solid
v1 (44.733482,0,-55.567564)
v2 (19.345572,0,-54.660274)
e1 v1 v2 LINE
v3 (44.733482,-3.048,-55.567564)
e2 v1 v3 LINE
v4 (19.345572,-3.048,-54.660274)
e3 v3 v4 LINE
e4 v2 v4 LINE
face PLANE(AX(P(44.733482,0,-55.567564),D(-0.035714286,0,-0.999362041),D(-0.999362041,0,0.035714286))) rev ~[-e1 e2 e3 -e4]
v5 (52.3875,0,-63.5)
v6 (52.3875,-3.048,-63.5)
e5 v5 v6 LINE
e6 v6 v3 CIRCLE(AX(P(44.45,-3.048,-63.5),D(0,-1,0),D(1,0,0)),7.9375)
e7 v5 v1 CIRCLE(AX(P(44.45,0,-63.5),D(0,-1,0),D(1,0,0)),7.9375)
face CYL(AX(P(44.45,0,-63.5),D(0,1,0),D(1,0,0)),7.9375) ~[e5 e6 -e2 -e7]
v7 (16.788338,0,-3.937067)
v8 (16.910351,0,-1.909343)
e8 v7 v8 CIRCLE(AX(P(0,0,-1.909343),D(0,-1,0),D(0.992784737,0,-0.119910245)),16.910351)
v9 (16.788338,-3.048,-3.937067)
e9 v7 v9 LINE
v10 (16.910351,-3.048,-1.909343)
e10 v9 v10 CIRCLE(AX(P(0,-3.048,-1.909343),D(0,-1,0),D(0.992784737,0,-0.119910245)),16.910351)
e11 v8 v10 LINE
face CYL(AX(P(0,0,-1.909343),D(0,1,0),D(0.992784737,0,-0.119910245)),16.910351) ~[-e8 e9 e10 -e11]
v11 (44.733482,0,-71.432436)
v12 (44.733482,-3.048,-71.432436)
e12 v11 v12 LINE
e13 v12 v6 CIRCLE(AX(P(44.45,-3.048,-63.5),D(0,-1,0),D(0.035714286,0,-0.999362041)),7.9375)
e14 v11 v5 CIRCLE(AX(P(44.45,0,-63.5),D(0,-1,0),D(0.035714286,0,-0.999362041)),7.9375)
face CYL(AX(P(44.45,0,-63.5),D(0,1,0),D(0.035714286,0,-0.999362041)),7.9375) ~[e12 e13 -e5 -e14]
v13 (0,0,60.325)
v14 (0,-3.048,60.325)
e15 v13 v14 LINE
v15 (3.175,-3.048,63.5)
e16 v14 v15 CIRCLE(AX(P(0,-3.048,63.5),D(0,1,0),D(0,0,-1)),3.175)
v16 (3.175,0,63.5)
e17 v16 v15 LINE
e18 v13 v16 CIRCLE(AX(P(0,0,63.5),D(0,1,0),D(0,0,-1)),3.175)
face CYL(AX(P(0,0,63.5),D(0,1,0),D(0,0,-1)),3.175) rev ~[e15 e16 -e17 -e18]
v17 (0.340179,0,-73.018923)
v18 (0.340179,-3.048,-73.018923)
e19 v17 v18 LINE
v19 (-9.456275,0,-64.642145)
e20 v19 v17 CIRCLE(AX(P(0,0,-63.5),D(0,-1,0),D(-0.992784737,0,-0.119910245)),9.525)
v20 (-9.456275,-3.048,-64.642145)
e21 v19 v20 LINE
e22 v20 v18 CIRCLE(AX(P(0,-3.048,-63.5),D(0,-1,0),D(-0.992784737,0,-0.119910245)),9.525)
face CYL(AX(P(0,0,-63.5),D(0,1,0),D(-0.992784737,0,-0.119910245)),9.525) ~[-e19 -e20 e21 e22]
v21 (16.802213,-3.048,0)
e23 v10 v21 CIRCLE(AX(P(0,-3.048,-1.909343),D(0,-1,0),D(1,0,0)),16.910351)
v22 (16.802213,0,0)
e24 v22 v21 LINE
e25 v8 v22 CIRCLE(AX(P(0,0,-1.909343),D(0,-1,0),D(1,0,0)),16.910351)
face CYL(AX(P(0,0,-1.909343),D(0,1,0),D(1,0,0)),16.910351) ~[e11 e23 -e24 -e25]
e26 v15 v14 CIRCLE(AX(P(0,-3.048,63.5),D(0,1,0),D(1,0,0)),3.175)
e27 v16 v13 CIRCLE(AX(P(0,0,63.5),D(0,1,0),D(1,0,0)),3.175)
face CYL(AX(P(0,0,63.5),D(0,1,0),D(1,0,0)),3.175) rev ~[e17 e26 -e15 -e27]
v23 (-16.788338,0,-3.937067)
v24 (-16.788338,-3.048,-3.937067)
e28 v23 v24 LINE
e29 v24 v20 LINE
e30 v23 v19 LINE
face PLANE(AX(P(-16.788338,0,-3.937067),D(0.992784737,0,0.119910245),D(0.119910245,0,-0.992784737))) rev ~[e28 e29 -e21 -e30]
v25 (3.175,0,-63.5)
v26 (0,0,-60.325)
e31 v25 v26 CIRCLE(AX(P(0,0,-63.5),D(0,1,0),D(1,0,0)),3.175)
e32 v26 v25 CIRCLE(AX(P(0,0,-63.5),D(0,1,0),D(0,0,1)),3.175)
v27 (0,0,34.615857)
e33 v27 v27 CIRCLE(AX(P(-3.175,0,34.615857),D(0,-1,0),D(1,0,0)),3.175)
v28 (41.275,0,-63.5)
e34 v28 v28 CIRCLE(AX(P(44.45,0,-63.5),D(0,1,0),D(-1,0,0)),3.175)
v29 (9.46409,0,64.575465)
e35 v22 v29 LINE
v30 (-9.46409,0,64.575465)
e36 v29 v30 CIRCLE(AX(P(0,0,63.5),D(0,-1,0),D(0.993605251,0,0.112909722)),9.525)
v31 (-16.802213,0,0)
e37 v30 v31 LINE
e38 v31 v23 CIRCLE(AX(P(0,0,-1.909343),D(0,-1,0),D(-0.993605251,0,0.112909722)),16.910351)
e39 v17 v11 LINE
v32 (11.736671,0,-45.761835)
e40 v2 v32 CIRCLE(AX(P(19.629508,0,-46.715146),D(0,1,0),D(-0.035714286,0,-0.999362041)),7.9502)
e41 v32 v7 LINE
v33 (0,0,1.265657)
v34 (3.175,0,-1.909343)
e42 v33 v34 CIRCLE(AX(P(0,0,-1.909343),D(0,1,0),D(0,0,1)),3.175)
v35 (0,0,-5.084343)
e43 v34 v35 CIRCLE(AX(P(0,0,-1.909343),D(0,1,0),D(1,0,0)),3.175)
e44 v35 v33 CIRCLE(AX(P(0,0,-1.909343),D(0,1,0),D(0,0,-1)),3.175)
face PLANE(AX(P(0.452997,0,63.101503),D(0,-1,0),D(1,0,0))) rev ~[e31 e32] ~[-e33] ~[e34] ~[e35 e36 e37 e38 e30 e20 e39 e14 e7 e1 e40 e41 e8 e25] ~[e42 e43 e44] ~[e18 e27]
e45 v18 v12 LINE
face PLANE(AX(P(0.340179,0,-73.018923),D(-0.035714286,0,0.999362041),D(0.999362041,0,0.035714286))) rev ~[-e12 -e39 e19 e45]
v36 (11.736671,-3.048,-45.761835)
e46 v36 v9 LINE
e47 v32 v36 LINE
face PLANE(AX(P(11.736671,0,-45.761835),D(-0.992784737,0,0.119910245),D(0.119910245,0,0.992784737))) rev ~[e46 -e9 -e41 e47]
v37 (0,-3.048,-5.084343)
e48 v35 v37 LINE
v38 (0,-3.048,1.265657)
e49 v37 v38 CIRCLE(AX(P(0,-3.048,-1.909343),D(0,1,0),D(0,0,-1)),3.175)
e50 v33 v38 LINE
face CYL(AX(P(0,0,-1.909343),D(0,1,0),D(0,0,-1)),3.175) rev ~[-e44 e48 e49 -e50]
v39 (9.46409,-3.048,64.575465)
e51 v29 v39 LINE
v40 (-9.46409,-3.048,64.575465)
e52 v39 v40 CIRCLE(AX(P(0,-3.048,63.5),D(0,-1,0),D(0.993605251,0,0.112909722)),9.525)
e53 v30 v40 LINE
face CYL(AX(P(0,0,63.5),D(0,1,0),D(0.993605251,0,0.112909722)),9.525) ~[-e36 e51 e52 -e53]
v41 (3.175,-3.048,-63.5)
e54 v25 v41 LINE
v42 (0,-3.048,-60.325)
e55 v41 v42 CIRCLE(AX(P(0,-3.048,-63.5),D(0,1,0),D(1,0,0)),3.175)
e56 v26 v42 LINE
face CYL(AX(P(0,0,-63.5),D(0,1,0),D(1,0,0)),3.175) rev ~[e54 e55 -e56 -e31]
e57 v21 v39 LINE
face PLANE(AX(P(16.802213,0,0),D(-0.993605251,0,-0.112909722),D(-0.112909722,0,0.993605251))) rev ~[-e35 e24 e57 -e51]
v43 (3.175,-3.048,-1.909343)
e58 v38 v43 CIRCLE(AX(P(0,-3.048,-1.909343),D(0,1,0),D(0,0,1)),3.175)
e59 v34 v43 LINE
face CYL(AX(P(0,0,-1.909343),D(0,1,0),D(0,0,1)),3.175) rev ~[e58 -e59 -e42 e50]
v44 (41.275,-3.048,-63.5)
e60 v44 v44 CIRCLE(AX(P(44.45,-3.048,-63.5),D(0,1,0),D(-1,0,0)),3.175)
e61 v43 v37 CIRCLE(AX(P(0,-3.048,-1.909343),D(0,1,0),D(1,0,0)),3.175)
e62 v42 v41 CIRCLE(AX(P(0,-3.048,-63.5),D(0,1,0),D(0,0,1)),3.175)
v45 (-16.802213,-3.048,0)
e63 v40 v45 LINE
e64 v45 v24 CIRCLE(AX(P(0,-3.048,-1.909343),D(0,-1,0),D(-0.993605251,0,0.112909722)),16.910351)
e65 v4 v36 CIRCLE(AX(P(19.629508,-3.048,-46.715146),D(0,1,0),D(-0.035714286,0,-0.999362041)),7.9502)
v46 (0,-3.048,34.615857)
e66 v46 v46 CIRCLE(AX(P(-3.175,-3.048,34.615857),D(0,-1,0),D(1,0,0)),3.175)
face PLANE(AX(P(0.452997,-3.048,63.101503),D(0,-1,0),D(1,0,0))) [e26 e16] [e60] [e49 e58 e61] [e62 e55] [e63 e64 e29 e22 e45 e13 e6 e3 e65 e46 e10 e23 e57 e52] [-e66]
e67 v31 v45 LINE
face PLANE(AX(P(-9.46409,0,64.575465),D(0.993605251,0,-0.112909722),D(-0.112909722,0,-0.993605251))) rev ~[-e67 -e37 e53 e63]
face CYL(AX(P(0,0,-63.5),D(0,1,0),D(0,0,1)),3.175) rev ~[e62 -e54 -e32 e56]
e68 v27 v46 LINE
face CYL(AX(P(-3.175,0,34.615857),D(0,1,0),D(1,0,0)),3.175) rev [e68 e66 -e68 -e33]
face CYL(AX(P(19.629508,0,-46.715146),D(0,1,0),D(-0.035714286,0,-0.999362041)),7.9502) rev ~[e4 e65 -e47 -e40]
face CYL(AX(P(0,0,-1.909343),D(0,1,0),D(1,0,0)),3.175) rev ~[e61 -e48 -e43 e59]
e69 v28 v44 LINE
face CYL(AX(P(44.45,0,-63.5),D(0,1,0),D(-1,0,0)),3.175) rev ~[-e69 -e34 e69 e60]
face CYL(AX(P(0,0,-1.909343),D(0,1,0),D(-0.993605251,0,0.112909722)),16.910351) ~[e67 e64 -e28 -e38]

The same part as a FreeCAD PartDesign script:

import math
import FreeCAD as App
import Part
import Sketcher
Q = App.Units.Quantity

doc = App.newDocument("Part")
params = doc.addObject("Spreadsheet::Sheet", "Params")
for row, (alias, value) in enumerate([
    ("sketch1_diameter", "0.25 in"),
    ("sketch1_radius", "0.375 in"),
    ("sketch1_radius2", "0.3125 in"),
    ("sketch1_radius3", "0.313 in"),
    ("pad1_length", "0.12 in"),
], start=1):
    params.set(f"A{row}", alias)
    params.set(f"B{row}", "=" + value)
    params.setAlias(f"B{row}", alias)

body = doc.addObject("PartDesign::Body", "Body")

# Sketch on XZ plane
sketch1 = body.newObject("Sketcher::SketchObject", "Sketch")
sketch1.AttachmentSupport = (doc.getObject("XZ_Plane"), [""])
sketch1.MapMode = "FlatFace"
sketch1.addGeometry([
    Part.ArcOfCircle(Part.Circle(App.Vector(0, -63.5, 0), App.Vector(0, 0, 1), 9.525), math.radians(-173.113077), math.radians(-87.953287)),  # 0
    Part.LineSegment(App.Vector(0.340179, -73.018923, 0), App.Vector(44.733482, -71.432436, 0)),  # 1
    Part.ArcOfCircle(Part.Circle(App.Vector(44.45, -63.5, 0), App.Vector(0, 0, 1), 7.9375), math.radians(-87.953287), math.radians(0)),  # 2
    Part.ArcOfCircle(Part.Circle(App.Vector(44.45, -63.5, 0), App.Vector(0, 0, 1), 7.9375), math.radians(0), math.radians(87.953287)),  # 3
    Part.LineSegment(App.Vector(44.733482, -55.567564, 0), App.Vector(19.345572, -54.660274, 0)),  # 4
    Part.ArcOfCircle(Part.Circle(App.Vector(19.629508, -46.715146, 0), App.Vector(0, 0, 1), 7.9502), math.radians(173.113077), math.radians(267.953287)),  # 5
    Part.LineSegment(App.Vector(11.736671, -45.761835, 0), App.Vector(16.788338, -3.937067, 0)),  # 6
    Part.ArcOfCircle(Part.Circle(App.Vector(0, -1.909343, 0), App.Vector(0, 0, 1), 16.910351), math.radians(-6.886923), math.radians(0)),  # 7
    Part.ArcOfCircle(Part.Circle(App.Vector(0, -1.909343, 0), App.Vector(0, 0, 1), 16.910351), math.radians(0), math.radians(6.483076)),  # 8
    Part.LineSegment(App.Vector(16.802213, 0, 0), App.Vector(9.46409, 64.575465, 0)),  # 9
    Part.ArcOfCircle(Part.Circle(App.Vector(0, 63.5, 0), App.Vector(0, 0, 1), 9.525), math.radians(6.483076), math.radians(173.516924)),  # 10
    Part.LineSegment(App.Vector(-9.46409, 64.575465, 0), App.Vector(-16.802213, 0, 0)),  # 11
    Part.ArcOfCircle(Part.Circle(App.Vector(0, -1.909343, 0), App.Vector(0, 0, 1), 16.910351), math.radians(173.516924), math.radians(186.886923)),  # 12
    Part.LineSegment(App.Vector(-16.788338, -3.937067, 0), App.Vector(-9.456275, -64.642145, 0)),  # 13
    Part.ArcOfCircle(Part.Circle(App.Vector(0, -63.5, 0), App.Vector(0, 0, 1), 3.175), math.radians(90), math.radians(360)),  # 14
    Part.ArcOfCircle(Part.Circle(App.Vector(0, -63.5, 0), App.Vector(0, 0, 1), 3.175), math.radians(0), math.radians(90)),  # 15
    Part.ArcOfCircle(Part.Circle(App.Vector(0, -1.909343, 0), App.Vector(0, 0, 1), 3.175), math.radians(0), math.radians(90)),  # 16
    Part.ArcOfCircle(Part.Circle(App.Vector(0, -1.909343, 0), App.Vector(0, 0, 1), 3.175), math.radians(-90), math.radians(0)),  # 17
    Part.ArcOfCircle(Part.Circle(App.Vector(0, -1.909343, 0), App.Vector(0, 0, 1), 3.175), math.radians(90), math.radians(270)),  # 18
    Part.Circle(App.Vector(44.45, -63.5, 0), App.Vector(0, 0, 1), 3.175),  # 19
    Part.Circle(App.Vector(-3.175, 34.615857, 0), App.Vector(0, 0, 1), 3.175),  # 20
    Part.ArcOfCircle(Part.Circle(App.Vector(0, 63.5, 0), App.Vector(0, 0, 1), 3.175), math.radians(0), math.radians(270)),  # 21
    Part.ArcOfCircle(Part.Circle(App.Vector(0, 63.5, 0), App.Vector(0, 0, 1), 3.175), math.radians(-90), math.radians(0)),  # 22
], False)
sketch1.addConstraint([
    Sketcher.Constraint("Tangent", 0, 2, 1, 1),
    Sketcher.Constraint("Tangent", 1, 2, 2, 1),
    Sketcher.Constraint("Tangent", 2, 2, 3, 1),
    Sketcher.Constraint("Tangent", 3, 2, 4, 1),
    Sketcher.Constraint("Tangent", 4, 2, 5, 2),
    Sketcher.Constraint("Tangent", 5, 1, 6, 1),
    Sketcher.Constraint("Tangent", 6, 2, 7, 1),
    Sketcher.Constraint("Tangent", 7, 2, 8, 1),
    Sketcher.Constraint("Tangent", 8, 2, 9, 1),
    Sketcher.Constraint("Tangent", 9, 2, 10, 1),
    Sketcher.Constraint("Tangent", 10, 2, 11, 1),
    Sketcher.Constraint("Tangent", 11, 2, 12, 1),
    Sketcher.Constraint("Tangent", 12, 2, 13, 1),
    Sketcher.Constraint("Tangent", 13, 2, 0, 1),
    Sketcher.Constraint("Tangent", 14, 1, 15, 2),
    Sketcher.Constraint("Coincident", 15, 1, 14, 2),
    Sketcher.Constraint("Tangent", 16, 1, 17, 2),
    Sketcher.Constraint("Tangent", 17, 1, 18, 2),
    Sketcher.Constraint("Tangent", 18, 1, 16, 2),
    Sketcher.Constraint("Tangent", 21, 1, 22, 2),
    Sketcher.Constraint("Coincident", 22, 1, 21, 2),
    Sketcher.Constraint("Coincident", 12, 3, 7, 3),
    Sketcher.Constraint("Coincident", 14, 3, 0, 3),
    Sketcher.Constraint("Coincident", 16, 3, 7, 3),
    Sketcher.Constraint("Coincident", 19, 3, 2, 3),
    Sketcher.Constraint("Coincident", 21, 3, 10, 3),
    Sketcher.Constraint("Equal", 2, 3),
    Sketcher.Constraint("Equal", 7, 8),
    Sketcher.Constraint("Equal", 0, 10),
    Sketcher.Constraint("Equal", 8, 12),
    Sketcher.Constraint("Equal", 15, 16),
    Sketcher.Constraint("Equal", 18, 19),
    Sketcher.Constraint("Equal", 19, 20),
    Sketcher.Constraint("Equal", 20, 21),
    Sketcher.Constraint("Symmetric", 0, 3, 10, 3, -1, 1),
    Sketcher.Constraint("Symmetric", 8, 2, 11, 2, -1, 1),
    Sketcher.Constraint("Symmetric", 6, 2, 12, 2, -2),
    Sketcher.Constraint("PointOnObject", 14, 1, -2),
    Sketcher.Constraint("PointOnObject", 17, 1, -2),
    Sketcher.Constraint("PointOnObject", 18, 1, -2),
    Sketcher.Constraint("PointOnObject", 22, 1, -2),
    Sketcher.Constraint("Horizontal", 0, 3, 2, 3),
    Sketcher.Constraint("Horizontal", 19, 3, 2, 2),
    Sketcher.Constraint("Horizontal", 18, 3, 7, 2),
    Sketcher.Constraint("Horizontal", 2, 2, 15, 1),
    Sketcher.Constraint("Horizontal", 7, 2, 16, 1),
    Sketcher.Constraint("Horizontal", 22, 3, 21, 1),
    Sketcher.Constraint("Vertical", 1, 2, 3, 2),
    Sketcher.Constraint("Diameter", 19, Q("0.25 in")),
    Sketcher.Constraint("Radius", 0, Q("0.375 in")),
    Sketcher.Constraint("Radius", 2, Q("0.3125 in")),
    Sketcher.Constraint("Radius", 5, Q("0.313 in")),
    Sketcher.Constraint("DistanceY", 0, 3, 10, 3, Q("5 in")),
    Sketcher.Constraint("DistanceX", -1, 1, 2, 3, Q("1.75 in")),
    Sketcher.Constraint("DistanceX", 20, 3, -1, 1, Q("0.125 in")),
    Sketcher.Constraint("Radius", 7, Q("16.910351 mm")),
    Sketcher.Constraint("DistanceY", 7, 3, 20, 3, Q("1.438 in")),
])
sketch1.setExpression("Constraints[48]", "Params.sketch1_diameter")
sketch1.setExpression("Constraints[49]", "Params.sketch1_radius")
sketch1.setExpression("Constraints[50]", "Params.sketch1_radius2")
sketch1.setExpression("Constraints[51]", "Params.sketch1_radius3")
pad1 = body.newObject("PartDesign::Pad", "Pad")
pad1.Profile = sketch1
pad1.setExpression("Length", "Params.pad1_length")

doc.recompute()
